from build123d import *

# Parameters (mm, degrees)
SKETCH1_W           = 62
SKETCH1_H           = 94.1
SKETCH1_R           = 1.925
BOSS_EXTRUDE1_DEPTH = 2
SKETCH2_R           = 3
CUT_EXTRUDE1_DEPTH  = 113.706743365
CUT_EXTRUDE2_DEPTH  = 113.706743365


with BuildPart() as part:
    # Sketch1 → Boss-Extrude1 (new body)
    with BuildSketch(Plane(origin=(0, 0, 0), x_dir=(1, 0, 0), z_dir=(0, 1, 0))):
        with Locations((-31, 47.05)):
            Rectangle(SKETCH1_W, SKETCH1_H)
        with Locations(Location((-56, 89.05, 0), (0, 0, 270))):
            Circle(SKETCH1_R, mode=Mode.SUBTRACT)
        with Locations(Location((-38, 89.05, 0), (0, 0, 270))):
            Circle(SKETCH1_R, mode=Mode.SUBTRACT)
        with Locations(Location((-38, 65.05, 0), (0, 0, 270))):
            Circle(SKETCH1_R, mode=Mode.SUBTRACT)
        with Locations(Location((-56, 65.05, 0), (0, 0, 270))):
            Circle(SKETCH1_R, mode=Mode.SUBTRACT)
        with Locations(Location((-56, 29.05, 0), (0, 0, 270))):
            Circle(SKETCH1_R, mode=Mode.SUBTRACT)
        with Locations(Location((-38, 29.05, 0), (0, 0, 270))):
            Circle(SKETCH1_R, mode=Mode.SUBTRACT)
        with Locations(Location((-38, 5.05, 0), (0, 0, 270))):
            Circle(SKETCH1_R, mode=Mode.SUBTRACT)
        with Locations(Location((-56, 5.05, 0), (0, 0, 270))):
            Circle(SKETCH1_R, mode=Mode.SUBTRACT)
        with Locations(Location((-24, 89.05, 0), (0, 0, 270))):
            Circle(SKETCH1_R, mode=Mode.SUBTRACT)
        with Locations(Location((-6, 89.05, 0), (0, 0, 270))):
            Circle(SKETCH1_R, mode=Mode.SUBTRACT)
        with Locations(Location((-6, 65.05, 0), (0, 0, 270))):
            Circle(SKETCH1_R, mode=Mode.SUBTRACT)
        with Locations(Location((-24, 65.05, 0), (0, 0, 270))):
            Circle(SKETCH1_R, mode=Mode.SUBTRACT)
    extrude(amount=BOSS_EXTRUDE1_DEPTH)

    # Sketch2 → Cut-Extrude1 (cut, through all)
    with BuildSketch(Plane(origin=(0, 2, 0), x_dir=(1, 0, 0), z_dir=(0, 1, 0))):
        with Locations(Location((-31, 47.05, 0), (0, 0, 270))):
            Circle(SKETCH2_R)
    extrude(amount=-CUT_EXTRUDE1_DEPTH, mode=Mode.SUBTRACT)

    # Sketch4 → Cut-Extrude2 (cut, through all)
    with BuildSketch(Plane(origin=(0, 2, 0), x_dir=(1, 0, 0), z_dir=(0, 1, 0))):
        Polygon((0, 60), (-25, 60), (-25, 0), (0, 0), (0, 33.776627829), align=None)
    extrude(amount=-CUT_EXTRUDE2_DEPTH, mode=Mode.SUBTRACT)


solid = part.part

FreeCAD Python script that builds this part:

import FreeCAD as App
import Part
import Sketcher
Q = App.Units.Quantity

doc = App.newDocument("Part")
body = doc.addObject("PartDesign::Body", "Body")

# Sketch on XZ plane
sketch1 = body.newObject("Sketcher::SketchObject", "Sketch")
sketch1.AttachmentSupport = (doc.getObject("XZ_Plane"), [""])
sketch1.MapMode = "FlatFace"
sketch1.addGeometry([
    Part.LineSegment(App.Vector(-62, -94.1, 0), App.Vector(-62, 0, 0)),  # 0
    Part.LineSegment(App.Vector(-62, 0, 0), App.Vector(0, 0, 0)),  # 1
    Part.LineSegment(App.Vector(0, 0, 0), App.Vector(0, -94.1, 0)),  # 2
    Part.LineSegment(App.Vector(0, -94.1, 0), App.Vector(-62, -94.1, 0)),  # 3
    Part.Circle(App.Vector(-56, -5, 0), App.Vector(0, 0, 1), 1.9),  # 4
    Part.Circle(App.Vector(-38, -5, 0), App.Vector(0, 0, 1), 1.9),  # 5
    Part.Circle(App.Vector(-56, -29.1, 0), App.Vector(0, 0, 1), 1.9),  # 6
    Part.Circle(App.Vector(-38, -29.1, 0), App.Vector(0, 0, 1), 1.9),  # 7
    Part.Circle(App.Vector(-56, -65, 0), App.Vector(0, 0, 1), 1.9),  # 8
    Part.Circle(App.Vector(-38, -65, 0), App.Vector(0, 0, 1), 1.9),  # 9
    Part.Circle(App.Vector(-56, -89, 0), App.Vector(0, 0, 1), 1.9),  # 10
    Part.Circle(App.Vector(-38, -89, 0), App.Vector(0, 0, 1), 1.9),  # 11
    Part.Circle(App.Vector(-24, -65, 0), App.Vector(0, 0, 1), 1.9),  # 12
    Part.Circle(App.Vector(-6, -65, 0), App.Vector(0, 0, 1), 1.9),  # 13
    Part.Circle(App.Vector(-24, -89, 0), App.Vector(0, 0, 1), 1.9),  # 14
    Part.Circle(App.Vector(-6, -89, 0), App.Vector(0, 0, 1), 1.9),  # 15
], False)
sketch1.addConstraint([
    Sketcher.Constraint("Coincident", 0, 2, 1, 1),
    Sketcher.Constraint("Coincident", 1, 2, 2, 1),
    Sketcher.Constraint("Coincident", 2, 2, 3, 1),
    Sketcher.Constraint("Coincident", 3, 2, 0, 1),
    Sketcher.Constraint("Vertical", 0),
    Sketcher.Constraint("Horizontal", 1),
    Sketcher.Constraint("Vertical", 2),
    Sketcher.Constraint("Horizontal", 3),
    Sketcher.Constraint("Coincident", 1, 2, -1, 1),
    Sketcher.Constraint("Equal", 4, 5),
    Sketcher.Constraint("Equal", 5, 6),
    Sketcher.Constraint("Equal", 6, 7),
    Sketcher.Constraint("Equal", 7, 8),
    Sketcher.Constraint("Equal", 8, 9),
    Sketcher.Constraint("Equal", 9, 10),
    Sketcher.Constraint("Equal", 10, 11),
    Sketcher.Constraint("Equal", 11, 12),
    Sketcher.Constraint("Equal", 12, 13),
    Sketcher.Constraint("Equal", 13, 14),
    Sketcher.Constraint("Equal", 14, 15),
    Sketcher.Constraint("Horizontal", 4, 3, 5, 3),
    Sketcher.Constraint("Horizontal", 6, 3, 7, 3),
    Sketcher.Constraint("Horizontal", 8, 3, 9, 3),
    Sketcher.Constraint("Horizontal", 10, 3, 11, 3),
    Sketcher.Constraint("Horizontal", 9, 3, 12, 3),
    Sketcher.Constraint("Horizontal", 12, 3, 13, 3),
    Sketcher.Constraint("Horizontal", 11, 3, 14, 3),
    Sketcher.Constraint("Horizontal", 14, 3, 15, 3),
    Sketcher.Constraint("Vertical", 4, 3, 6, 3),
    Sketcher.Constraint("Vertical", 5, 3, 7, 3),
    Sketcher.Constraint("Vertical", 6, 3, 8, 3),
    Sketcher.Constraint("Vertical", 7, 3, 9, 3),
    Sketcher.Constraint("Vertical", 8, 3, 10, 3),
    Sketcher.Constraint("Vertical", 9, 3, 11, 3),
    Sketcher.Constraint("Vertical", 12, 3, 14, 3),
    Sketcher.Constraint("Vertical", 13, 3, 15, 3),
    Sketcher.Constraint("Diameter", 4, Q("3.85 mm")),
    Sketcher.Constraint("DistanceX", 1, 1, 1, 2, Q("62 mm")),
    Sketcher.Constraint("DistanceY", 0, 1, 0, 2, Q("94.1 mm")),
    Sketcher.Constraint("DistanceX", 4, 3, -1, 1, Q("56 mm")),
    Sketcher.Constraint("DistanceX", 5, 3, -1, 1, Q("38 mm")),
    Sketcher.Constraint("DistanceX", 12, 3, -1, 1, Q("24 mm")),
    Sketcher.Constraint("DistanceX", 13, 3, -1, 1, Q("6 mm")),
    Sketcher.Constraint("DistanceY", 6, 3, 4, 3, Q("24 mm")),
    Sketcher.Constraint("DistanceY", 8, 3, 6, 3, Q("36 mm")),
    Sketcher.Constraint("DistanceY", 10, 3, 8, 3, Q("24 mm")),
    Sketcher.Constraint("DistanceY", 4, 3, -1, 1, Q("5.05 mm")),
])
pad1 = body.newObject("PartDesign::Pad", "Pad")
pad1.Profile = sketch1
pad1.Length = 2
pad1.Reversed = True

# Sketch on XZ plane
sketch2 = body.newObject("Sketcher::SketchObject", "Sketch001")
sketch2.AttachmentSupport = (doc.getObject("XZ_Plane"), [""])
sketch2.MapMode = "FlatFace"
sketch2.AttachmentOffset = App.Placement(App.Vector(0, 0, -2), App.Rotation())
sketch2.addGeometry(Part.Circle(App.Vector(-31, -47, 0), App.Vector(0, 0, 1), 3), False)
sketch2.addConstraint([
    Sketcher.Constraint("Diameter", 0, Q("6 mm")),
    Sketcher.Constraint("DistanceX", 0, 3, -1, 1, Q("31 mm")),
    Sketcher.Constraint("DistanceY", 0, 3, -1, 1, Q("47.05 mm")),
])
pocket1 = body.newObject("PartDesign::Pocket", "Pocket")
pocket1.Profile = sketch2
pocket1.Type = "ThroughAll"
pocket1.Reversed = True

# Sketch on XZ plane
sketch3 = body.newObject("Sketcher::SketchObject", "Sketch002")
sketch3.AttachmentSupport = (doc.getObject("XZ_Plane"), [""])
sketch3.MapMode = "FlatFace"
sketch3.AttachmentOffset = App.Placement(App.Vector(0, 0, -2), App.Rotation())
sketch3.addGeometry([
    Part.LineSegment(App.Vector(0, -60, 0), App.Vector(-25, -60, 0)),
    Part.LineSegment(App.Vector(-25, -60, 0), App.Vector(-25, 0, 0)),
    Part.LineSegment(App.Vector(-25, 0, 0), App.Vector(0, 0, 0)),
    Part.LineSegment(App.Vector(0, 0, 0), App.Vector(0, -60, 0)),
], False)
sketch3.addConstraint([
    Sketcher.Constraint("Coincident", 0, 2, 1, 1),
    Sketcher.Constraint("Coincident", 1, 2, 2, 1),
    Sketcher.Constraint("Coincident", 2, 2, 3, 1),
    Sketcher.Constraint("Coincident", 3, 2, 0, 1),
    Sketcher.Constraint("Horizontal", 0),
    Sketcher.Constraint("Vertical", 1),
    Sketcher.Constraint("Horizontal", 2),
    Sketcher.Constraint("Vertical", 3),
    Sketcher.Constraint("Coincident", 2, 2, -1, 1),
    Sketcher.Constraint("DistanceX", 0, 2, 0, 1, Q("25 mm")),
    Sketcher.Constraint("DistanceY", 1, 1, 1, 2, Q("60 mm")),
])
pocket2 = body.newObject("PartDesign::Pocket", "Pocket001")
pocket2.Profile = sketch3
pocket2.Type = "ThroughAll"
pocket2.Reversed = True

doc.recompute()
